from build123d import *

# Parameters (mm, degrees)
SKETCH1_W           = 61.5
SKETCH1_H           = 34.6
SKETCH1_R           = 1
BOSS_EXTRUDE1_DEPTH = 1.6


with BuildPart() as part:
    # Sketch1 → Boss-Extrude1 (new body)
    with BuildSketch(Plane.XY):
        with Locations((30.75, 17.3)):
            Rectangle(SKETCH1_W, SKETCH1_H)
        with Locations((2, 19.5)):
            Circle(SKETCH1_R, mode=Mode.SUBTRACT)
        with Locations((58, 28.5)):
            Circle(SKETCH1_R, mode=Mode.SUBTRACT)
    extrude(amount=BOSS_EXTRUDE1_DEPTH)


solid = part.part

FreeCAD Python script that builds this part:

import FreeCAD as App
import Part
import Sketcher
from FreeCAD import Vector
Q = App.Units.Quantity

doc = App.newDocument("Part")
body = doc.addObject("PartDesign::Body", "Body")

# Sketch on XY plane
sketch1 = body.newObject("Sketcher::SketchObject", "Sketch")
sketch1.AttachmentSupport = (doc.getObject("XY_Plane"), [""])
sketch1.MapMode = "FlatFace"
sketch1.addGeometry([
    Part.LineSegment(Vector(0, 34.6, 0), Vector(0, 0, 0)),  # 0
    Part.LineSegment(Vector(0, 0, 0), Vector(61.5, 0, 0)),  # 1
    Part.LineSegment(Vector(61.5, 0, 0), Vector(61.5, 34.6, 0)),  # 2
    Part.LineSegment(Vector(61.5, 34.6, 0), Vector(0, 34.6, 0)),  # 3
    Part.Circle(Vector(2, 19.5, 0), Vector(0, 0, 1), 1),  # 4
    Part.Circle(Vector(58, 28.5, 0), Vector(0, 0, 1), 1),  # 5
], False)
sketch1.addConstraint([
    Sketcher.Constraint("Coincident", 0, 2, 1, 1),
    Sketcher.Constraint("Coincident", 1, 2, 2, 1),
    Sketcher.Constraint("Coincident", 2, 2, 3, 1),
    Sketcher.Constraint("Coincident", 3, 2, 0, 1),
    Sketcher.Constraint("Vertical", 0),
    Sketcher.Constraint("Horizontal", 1),
    Sketcher.Constraint("Vertical", 2),
    Sketcher.Constraint("Horizontal", 3),
    Sketcher.Constraint("Coincident", 0, 2, -1, 1),
    Sketcher.Constraint("Equal", 4, 5),
    Sketcher.Constraint("Diameter", 4, Q("2 mm")),
    Sketcher.Constraint("DistanceX", 1, 1, 1, 2, Q("61.5 mm")),
    Sketcher.Constraint("DistanceY", 0, 2, 0, 1, Q("34.6 mm")),
    Sketcher.Constraint("DistanceX", -1, 1, 4, 3, Q("2 mm")),
    Sketcher.Constraint("DistanceX", -1, 1, 5, 3, Q("58 mm")),
    Sketcher.Constraint("DistanceY", 4, 3, 5, 3, Q("9 mm")),
    Sketcher.Constraint("DistanceY", -1, 1, 4, 3, Q("19.5 mm")),
])
pad1 = body.newObject("PartDesign::Pad", "Pad")
pad1.Profile = sketch1
pad1.Length = 1.6

doc.recompute()
